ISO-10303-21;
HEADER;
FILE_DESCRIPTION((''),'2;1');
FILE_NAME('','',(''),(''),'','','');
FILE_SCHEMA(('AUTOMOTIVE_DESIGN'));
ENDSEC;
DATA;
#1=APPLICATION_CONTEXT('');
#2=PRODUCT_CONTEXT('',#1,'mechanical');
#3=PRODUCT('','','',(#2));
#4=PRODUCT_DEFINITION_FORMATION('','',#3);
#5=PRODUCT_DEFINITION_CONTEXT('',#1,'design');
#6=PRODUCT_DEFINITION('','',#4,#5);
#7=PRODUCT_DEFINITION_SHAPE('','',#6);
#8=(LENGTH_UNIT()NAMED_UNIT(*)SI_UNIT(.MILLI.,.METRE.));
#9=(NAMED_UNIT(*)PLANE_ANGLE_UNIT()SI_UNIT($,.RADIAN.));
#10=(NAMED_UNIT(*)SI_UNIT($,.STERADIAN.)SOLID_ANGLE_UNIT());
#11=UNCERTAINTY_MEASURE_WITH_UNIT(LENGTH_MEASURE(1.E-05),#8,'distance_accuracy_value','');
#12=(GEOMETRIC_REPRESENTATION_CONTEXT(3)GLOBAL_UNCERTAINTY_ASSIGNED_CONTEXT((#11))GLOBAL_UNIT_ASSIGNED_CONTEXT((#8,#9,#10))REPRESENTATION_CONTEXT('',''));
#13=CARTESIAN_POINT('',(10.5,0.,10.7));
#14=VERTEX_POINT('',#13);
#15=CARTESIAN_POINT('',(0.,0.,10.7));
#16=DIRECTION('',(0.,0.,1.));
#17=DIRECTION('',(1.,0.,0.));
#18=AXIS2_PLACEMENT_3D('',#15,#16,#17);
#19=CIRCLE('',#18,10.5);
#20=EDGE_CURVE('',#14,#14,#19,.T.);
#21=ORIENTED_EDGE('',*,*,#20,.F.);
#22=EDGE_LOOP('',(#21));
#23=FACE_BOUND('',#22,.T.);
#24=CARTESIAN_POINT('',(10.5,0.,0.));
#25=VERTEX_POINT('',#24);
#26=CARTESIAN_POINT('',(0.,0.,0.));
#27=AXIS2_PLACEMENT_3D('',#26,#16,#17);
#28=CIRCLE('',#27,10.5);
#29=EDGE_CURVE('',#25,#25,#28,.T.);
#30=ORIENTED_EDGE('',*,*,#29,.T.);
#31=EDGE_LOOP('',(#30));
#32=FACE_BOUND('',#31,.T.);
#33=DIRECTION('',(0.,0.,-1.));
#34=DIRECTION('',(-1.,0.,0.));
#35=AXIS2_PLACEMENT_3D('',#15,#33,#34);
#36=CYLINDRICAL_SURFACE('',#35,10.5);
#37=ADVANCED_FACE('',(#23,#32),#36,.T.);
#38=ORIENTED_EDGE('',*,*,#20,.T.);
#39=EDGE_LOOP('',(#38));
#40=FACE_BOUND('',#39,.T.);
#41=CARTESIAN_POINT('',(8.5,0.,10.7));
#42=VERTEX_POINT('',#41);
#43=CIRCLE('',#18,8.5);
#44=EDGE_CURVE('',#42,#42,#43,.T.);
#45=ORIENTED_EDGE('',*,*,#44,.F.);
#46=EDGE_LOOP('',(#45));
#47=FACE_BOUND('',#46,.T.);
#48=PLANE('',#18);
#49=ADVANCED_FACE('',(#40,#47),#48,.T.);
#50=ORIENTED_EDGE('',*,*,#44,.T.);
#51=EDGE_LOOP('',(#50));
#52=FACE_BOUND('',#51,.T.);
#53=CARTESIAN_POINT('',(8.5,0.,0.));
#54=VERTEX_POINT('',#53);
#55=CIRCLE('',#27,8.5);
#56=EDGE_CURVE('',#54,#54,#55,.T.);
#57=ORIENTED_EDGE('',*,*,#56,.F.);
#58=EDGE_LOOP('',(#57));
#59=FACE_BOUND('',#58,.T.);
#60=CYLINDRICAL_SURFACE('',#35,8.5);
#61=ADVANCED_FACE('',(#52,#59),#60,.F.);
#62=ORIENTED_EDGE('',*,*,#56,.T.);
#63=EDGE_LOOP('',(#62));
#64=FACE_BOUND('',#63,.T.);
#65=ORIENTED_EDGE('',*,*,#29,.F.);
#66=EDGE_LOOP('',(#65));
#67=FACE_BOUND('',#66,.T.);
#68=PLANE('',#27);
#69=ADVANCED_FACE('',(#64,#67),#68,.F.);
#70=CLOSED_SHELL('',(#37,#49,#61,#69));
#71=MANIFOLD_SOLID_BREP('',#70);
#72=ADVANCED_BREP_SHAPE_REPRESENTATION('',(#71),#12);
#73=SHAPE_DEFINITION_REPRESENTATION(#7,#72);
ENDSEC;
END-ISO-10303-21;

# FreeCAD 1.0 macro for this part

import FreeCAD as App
import Part
import Sketcher

V = App.Vector

doc = App.newDocument("Part")
body = doc.addObject("PartDesign::Body", "Body")

# Sketch on XY plane
sketch1 = doc.addObject("Sketcher::SketchObject", "Sketch")
body.addObject(sketch1)
sketch1.AttachmentSupport = (doc.XY_Plane, [""])
sketch1.MapMode = "FlatFace"
sketch1.addGeometry(Part.Circle(V(0, 0, 0), V(0, 0, 1), 10), False)
sketch1.addGeometry(Part.Circle(V(0, 0, 0), V(0, 0, 1), 8), False)
sketch1.addConstraint(Sketcher.Constraint("Coincident", 0, 3, -1, 1))
sketch1.addConstraint(Sketcher.Constraint("Coincident", 1, 3, -1, 1))
sketch1.addConstraint(Sketcher.Constraint("Diameter", 0, 21.0))
sketch1.addConstraint(Sketcher.Constraint("Diameter", 1, 17.0))
pad1 = doc.addObject("PartDesign::Pad", "Pad")
body.addObject(pad1)
pad1.Profile = sketch1
pad1.Length = 10.7

doc.recompute()
